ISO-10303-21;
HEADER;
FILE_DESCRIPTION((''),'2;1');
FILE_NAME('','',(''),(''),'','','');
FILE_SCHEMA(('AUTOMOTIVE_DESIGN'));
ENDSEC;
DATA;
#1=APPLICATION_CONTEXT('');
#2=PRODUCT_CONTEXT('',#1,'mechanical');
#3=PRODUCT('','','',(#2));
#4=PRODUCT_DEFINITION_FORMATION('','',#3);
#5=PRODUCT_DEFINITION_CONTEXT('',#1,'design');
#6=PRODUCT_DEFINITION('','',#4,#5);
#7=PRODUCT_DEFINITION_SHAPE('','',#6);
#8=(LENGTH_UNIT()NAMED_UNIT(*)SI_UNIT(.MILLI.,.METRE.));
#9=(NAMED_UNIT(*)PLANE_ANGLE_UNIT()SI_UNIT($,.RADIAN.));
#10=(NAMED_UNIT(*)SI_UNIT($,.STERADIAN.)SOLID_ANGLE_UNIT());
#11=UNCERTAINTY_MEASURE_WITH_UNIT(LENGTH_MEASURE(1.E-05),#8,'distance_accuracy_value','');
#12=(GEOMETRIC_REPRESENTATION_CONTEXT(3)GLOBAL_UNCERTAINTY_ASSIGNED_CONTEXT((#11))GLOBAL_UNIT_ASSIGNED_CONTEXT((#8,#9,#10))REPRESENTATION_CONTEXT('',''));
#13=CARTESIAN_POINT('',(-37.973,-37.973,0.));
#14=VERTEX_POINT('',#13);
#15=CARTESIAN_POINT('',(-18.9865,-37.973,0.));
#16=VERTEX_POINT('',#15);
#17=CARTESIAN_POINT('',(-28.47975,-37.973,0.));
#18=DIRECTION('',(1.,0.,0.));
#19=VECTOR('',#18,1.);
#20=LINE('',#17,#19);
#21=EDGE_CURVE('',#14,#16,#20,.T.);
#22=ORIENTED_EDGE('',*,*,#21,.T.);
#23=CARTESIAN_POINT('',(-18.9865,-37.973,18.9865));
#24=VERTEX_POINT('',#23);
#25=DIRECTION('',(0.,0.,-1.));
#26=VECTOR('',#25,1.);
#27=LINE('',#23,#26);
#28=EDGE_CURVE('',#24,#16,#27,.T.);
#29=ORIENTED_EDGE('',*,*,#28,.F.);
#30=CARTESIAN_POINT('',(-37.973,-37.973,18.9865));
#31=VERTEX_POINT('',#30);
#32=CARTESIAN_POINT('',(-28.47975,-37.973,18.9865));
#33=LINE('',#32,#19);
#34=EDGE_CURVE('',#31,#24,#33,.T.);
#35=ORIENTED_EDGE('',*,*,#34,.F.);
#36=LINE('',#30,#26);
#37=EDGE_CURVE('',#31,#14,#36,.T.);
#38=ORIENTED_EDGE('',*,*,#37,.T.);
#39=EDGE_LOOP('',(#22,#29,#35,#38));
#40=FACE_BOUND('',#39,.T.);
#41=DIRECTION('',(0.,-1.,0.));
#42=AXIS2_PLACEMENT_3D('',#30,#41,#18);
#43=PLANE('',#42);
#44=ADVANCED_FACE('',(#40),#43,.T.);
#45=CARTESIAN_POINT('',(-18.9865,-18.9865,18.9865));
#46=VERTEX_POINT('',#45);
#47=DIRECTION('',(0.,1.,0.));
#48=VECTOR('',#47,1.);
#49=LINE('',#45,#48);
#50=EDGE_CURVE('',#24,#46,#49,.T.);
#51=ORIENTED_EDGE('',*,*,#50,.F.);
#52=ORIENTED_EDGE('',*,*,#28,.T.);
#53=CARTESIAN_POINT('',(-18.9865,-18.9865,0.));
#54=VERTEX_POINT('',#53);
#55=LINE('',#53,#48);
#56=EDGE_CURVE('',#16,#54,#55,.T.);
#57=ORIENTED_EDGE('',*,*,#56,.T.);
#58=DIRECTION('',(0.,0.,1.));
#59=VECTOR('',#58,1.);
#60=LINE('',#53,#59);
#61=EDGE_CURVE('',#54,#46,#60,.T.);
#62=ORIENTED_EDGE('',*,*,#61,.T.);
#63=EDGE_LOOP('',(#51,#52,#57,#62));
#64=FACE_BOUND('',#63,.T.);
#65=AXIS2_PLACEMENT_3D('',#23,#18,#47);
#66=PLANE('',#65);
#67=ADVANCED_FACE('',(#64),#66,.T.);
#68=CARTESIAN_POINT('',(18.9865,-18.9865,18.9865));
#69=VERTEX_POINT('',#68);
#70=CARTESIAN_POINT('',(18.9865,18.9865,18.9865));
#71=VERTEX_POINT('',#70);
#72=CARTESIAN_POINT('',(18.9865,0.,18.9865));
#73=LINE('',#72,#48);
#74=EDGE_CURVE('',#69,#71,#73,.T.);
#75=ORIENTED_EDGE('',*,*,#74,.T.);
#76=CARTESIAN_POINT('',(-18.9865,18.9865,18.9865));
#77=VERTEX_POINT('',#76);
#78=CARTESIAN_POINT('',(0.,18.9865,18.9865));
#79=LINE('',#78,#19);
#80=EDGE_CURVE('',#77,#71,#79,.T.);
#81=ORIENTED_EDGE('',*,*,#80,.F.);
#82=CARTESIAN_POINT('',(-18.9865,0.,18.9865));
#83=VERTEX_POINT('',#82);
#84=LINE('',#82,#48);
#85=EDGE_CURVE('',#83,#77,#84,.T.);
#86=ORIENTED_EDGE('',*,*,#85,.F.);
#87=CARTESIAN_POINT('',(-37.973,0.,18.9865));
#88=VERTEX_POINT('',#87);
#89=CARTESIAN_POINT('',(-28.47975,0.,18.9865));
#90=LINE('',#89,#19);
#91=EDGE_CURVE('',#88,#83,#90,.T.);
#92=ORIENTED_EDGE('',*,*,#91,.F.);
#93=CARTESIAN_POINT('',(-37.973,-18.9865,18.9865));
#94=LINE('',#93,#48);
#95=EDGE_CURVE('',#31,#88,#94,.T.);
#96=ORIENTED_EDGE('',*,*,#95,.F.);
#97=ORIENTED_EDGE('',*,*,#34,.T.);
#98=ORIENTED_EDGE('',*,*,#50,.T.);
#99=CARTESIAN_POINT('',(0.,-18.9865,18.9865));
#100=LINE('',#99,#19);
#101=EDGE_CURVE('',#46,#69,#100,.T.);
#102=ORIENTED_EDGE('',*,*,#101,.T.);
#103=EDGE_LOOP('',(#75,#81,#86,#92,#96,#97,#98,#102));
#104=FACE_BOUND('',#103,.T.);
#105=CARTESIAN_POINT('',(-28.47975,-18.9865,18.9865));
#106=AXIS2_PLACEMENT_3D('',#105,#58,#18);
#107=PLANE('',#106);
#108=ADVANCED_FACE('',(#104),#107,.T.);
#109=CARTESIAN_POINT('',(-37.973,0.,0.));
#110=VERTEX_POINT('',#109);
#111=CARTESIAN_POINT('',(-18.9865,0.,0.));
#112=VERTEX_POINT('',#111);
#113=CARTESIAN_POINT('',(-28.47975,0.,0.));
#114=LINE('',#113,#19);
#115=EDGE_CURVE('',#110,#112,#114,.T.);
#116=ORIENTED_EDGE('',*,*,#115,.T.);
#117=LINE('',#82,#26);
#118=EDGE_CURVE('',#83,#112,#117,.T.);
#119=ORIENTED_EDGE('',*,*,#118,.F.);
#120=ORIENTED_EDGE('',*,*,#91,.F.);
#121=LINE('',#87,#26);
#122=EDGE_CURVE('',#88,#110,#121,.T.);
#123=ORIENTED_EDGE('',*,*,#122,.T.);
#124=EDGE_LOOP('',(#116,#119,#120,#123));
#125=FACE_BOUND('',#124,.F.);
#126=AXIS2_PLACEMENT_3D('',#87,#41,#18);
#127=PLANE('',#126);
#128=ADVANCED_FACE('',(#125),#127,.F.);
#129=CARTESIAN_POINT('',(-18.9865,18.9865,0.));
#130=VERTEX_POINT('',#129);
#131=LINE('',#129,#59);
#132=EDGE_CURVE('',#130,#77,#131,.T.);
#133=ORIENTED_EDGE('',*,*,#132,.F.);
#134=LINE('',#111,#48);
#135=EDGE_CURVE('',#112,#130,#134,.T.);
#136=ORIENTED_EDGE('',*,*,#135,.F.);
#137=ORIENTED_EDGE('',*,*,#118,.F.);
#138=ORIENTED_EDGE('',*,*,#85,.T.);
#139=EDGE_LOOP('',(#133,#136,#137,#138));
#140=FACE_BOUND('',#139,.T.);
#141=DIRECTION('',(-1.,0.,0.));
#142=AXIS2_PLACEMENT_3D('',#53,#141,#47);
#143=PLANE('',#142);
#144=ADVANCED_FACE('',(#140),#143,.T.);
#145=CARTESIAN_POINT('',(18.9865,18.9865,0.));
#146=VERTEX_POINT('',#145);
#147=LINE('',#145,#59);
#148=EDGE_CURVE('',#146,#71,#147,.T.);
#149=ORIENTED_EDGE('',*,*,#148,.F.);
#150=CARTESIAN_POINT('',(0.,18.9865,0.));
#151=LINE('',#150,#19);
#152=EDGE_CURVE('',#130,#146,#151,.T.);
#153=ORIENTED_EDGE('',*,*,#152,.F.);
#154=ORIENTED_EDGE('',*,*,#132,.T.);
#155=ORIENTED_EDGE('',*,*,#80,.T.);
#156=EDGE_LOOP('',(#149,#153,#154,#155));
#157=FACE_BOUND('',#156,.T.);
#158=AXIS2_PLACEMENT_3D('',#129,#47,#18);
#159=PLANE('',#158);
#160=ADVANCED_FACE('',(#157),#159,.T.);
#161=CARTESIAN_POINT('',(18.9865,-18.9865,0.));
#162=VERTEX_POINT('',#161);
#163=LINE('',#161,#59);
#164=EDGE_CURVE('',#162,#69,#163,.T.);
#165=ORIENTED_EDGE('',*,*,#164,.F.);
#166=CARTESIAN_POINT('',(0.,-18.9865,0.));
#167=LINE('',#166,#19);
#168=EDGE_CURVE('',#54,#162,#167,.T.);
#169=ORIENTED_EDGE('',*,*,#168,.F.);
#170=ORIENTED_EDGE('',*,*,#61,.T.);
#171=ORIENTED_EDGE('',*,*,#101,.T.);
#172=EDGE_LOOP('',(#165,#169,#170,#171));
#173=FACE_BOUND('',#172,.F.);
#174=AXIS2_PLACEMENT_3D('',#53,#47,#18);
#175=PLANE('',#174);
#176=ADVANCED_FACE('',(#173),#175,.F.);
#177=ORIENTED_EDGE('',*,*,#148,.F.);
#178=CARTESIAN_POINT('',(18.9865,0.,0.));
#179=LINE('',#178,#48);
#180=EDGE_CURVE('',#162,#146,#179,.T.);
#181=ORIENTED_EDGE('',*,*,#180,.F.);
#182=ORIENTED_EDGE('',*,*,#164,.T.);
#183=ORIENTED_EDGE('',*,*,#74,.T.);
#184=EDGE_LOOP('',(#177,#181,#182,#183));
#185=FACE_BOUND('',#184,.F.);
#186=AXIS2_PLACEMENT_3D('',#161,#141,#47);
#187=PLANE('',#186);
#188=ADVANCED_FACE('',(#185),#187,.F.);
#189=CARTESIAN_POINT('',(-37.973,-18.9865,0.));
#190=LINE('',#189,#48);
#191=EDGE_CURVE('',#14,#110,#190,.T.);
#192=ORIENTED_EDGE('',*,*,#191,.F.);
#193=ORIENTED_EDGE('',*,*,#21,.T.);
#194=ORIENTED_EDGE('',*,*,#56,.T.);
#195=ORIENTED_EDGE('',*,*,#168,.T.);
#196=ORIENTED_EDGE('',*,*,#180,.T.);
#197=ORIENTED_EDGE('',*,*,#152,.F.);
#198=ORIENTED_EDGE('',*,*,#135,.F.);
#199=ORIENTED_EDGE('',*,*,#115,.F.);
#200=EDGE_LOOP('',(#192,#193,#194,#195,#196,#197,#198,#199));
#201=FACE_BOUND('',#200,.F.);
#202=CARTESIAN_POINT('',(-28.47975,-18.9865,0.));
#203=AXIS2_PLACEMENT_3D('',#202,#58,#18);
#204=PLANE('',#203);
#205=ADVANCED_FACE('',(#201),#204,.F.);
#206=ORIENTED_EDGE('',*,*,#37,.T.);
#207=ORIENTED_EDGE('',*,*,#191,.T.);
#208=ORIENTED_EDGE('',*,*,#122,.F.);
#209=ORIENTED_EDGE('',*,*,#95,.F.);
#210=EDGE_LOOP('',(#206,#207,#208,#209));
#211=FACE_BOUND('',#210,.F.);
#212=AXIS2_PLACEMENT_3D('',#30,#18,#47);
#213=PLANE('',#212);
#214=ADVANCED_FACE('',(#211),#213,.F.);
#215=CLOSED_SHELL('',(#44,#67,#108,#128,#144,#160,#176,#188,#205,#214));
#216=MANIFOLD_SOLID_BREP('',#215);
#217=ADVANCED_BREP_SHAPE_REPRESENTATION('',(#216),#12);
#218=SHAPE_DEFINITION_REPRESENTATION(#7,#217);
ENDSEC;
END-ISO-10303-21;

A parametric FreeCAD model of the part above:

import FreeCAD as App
import Part
import Sketcher
Q = App.Units.Quantity


def add_polygon(sketch, points):
    """Adds a closed chain of lines whose ends are joined by coincident constraints."""
    first, n = sketch.GeometryCount, len(points)
    for a, b in zip(points, points[1:] + points[:1]):
        sketch.addGeometry(Part.LineSegment(App.Vector(*a, 0), App.Vector(*b, 0)), False)
    for i in range(n):
        sketch.addConstraint(Sketcher.Constraint("Coincident", first + i, 2, first + (i + 1) % n, 1))

doc = App.newDocument("Part")
body = doc.addObject("PartDesign::Body", "Body")

# Sketch on XY plane
sketch1 = doc.addObject("Sketcher::SketchObject", "Sketch")
body.addObject(sketch1)
sketch1.AttachmentSupport = (doc.XY_Plane, [""])
sketch1.MapMode = "FlatFace"
add_polygon(sketch1, [(-19, 19), (-19, -19), (19, -19), (19, 19)])  # lines 0-3
sketch1.addConstraint([
    Sketcher.Constraint("Vertical", 0),
    Sketcher.Constraint("Horizontal", 1),
    Sketcher.Constraint("Vertical", 2),
    Sketcher.Constraint("Horizontal", 3),
    Sketcher.Constraint("Symmetric", 0, 2, 2, 2, -1, 1),
    Sketcher.Constraint("Equal", 3, 0),
    Sketcher.Constraint("DistanceX", 1, 1, 1, 2, Q("1.495 in")),
])
pad1 = doc.addObject("PartDesign::Pad", "Pad")
body.addObject(pad1)
pad1.Profile = sketch1
pad1.Length = Q("0.7475 in")

# Sketch on XY plane
sketch2 = doc.addObject("Sketcher::SketchObject", "Sketch001")
body.addObject(sketch2)
sketch2.AttachmentSupport = (doc.XY_Plane, [""])
sketch2.MapMode = "FlatFace"
sketch2.AttachmentOffset = App.Placement(App.Vector(0, 0, 0.7475 * 25.4), App.Rotation())
add_polygon(sketch2, [(-38, 0), (-38, -38), (-19, -38), (-19, 0)])  # lines 0-3
sketch2.addConstraint([
    Sketcher.Constraint("Vertical", 0),
    Sketcher.Constraint("Horizontal", 1),
    Sketcher.Constraint("Vertical", 2),
    Sketcher.Constraint("Horizontal", 3),
    Sketcher.Constraint("PointOnObject", 2, 2, -1),
    Sketcher.Constraint("DistanceY", 0, 2, 0, 1, Q("1.495 in")),
    Sketcher.Constraint("DistanceX", 1, 1, 1, 2, Q("0.7475 in")),
    Sketcher.Constraint("DistanceX", 0, 2, -1, 1, Q("1.495 in")),
])
pad2 = doc.addObject("PartDesign::Pad", "Pad001")
body.addObject(pad2)
pad2.Profile = sketch2
pad2.Length = Q("0.7475 in")
pad2.Reversed = True

doc.recompute()
